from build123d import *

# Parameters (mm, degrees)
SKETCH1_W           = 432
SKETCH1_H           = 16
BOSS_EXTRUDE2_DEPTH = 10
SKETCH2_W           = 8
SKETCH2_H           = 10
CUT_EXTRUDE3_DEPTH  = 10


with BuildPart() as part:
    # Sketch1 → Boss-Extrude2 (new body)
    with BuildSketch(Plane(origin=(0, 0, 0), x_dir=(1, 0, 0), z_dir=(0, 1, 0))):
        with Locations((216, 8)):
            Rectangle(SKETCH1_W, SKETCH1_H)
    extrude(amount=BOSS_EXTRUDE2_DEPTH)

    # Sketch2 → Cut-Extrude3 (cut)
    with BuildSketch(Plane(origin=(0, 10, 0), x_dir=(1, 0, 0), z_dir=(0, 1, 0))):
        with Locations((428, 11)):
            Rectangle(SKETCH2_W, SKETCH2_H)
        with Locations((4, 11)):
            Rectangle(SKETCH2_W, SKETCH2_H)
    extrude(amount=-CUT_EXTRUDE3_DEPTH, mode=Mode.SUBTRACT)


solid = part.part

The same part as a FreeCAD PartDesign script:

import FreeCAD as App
import Part
import Sketcher
Q = App.Units.Quantity


def add_polygon(sketch, points):
    """Adds a closed chain of lines whose ends are joined by coincident constraints."""
    first, n = sketch.GeometryCount, len(points)
    for a, b in zip(points, points[1:] + points[:1]):
        sketch.addGeometry(Part.LineSegment(App.Vector(*a, 0), App.Vector(*b, 0)), False)
    for i in range(n):
        sketch.addConstraint(Sketcher.Constraint("Coincident", first + i, 2, first + (i + 1) % n, 1))

doc = App.newDocument("Part")
params = doc.addObject("Spreadsheet::Sheet", "Params")
for row, (alias, value) in enumerate([
    ("sketch1_width", "432 mm"),
    ("sketch1_height", "16 mm"),
    ("pad1_length", "10 mm"),
    ("sketch2_width", "8 mm"),
    ("sketch2_height", "10 mm"),
    ("pocket1_length", "10 mm"),
], start=1):
    params.set(f"A{row}", alias)
    params.set(f"B{row}", "=" + value)
    params.setAlias(f"B{row}", alias)

body = doc.addObject("PartDesign::Body", "Body")

sketch1 = doc.addObject("Sketcher::SketchObject", "Sketch")
body.addObject(sketch1)
sketch1.AttachmentSupport = (doc.XZ_Plane, [""])
sketch1.MapMode = "FlatFace"
add_polygon(sketch1, [(0, -16), (0, 0), (432, 0), (432, -16)])
sketch1.addConstraint([
    Sketcher.Constraint("Vertical", 0),
    Sketcher.Constraint("Horizontal", 1),
    Sketcher.Constraint("Vertical", 2),
    Sketcher.Constraint("Horizontal", 3),
    Sketcher.Constraint("Coincident", 0, 2, -1, 1),
    Sketcher.Constraint("DistanceX", 1, 1, 1, 2, Q("432 mm")),
    Sketcher.Constraint("DistanceY", 0, 1, 0, 2, Q("16 mm")),
])
sketch1.setExpression("Constraints[9]", "Params.sketch1_width")
sketch1.setExpression("Constraints[10]", "Params.sketch1_height")
pad1 = doc.addObject("PartDesign::Pad", "Pad")
body.addObject(pad1)
pad1.Profile = sketch1
pad1.setExpression("Length", "Params.pad1_length")
pad1.Reversed = True

sketch2 = doc.addObject("Sketcher::SketchObject", "Sketch001")
body.addObject(sketch2)
sketch2.AttachmentSupport = (doc.XZ_Plane, [""])
sketch2.MapMode = "FlatFace"
sketch2.AttachmentOffset = App.Placement(App.Vector(0, 0, -10), App.Rotation())
add_polygon(sketch2, [(424, -16), (424, -6), (432, -6), (432, -16)])
add_polygon(sketch2, [(0, -16), (0, -6), (8, -6), (8, -16)])
sketch2.addConstraint([
    Sketcher.Constraint("Vertical", 0),
    Sketcher.Constraint("Horizontal", 1),
    Sketcher.Constraint("Vertical", 2),
    Sketcher.Constraint("Horizontal", 3),
    Sketcher.Constraint("Vertical", 4),
    Sketcher.Constraint("Horizontal", 5),
    Sketcher.Constraint("Vertical", 6),
    Sketcher.Constraint("Horizontal", 7),
    Sketcher.Constraint("PointOnObject", 4, 2, -2),
    Sketcher.Constraint("Horizontal", 1, 2, 4, 2),
    Sketcher.Constraint("Horizontal", 3, 2, 6, 2),
    Sketcher.Constraint("Equal", 3, 5),
    Sketcher.Constraint("DistanceX", 1, 1, 1, 2, Q("8 mm")),
    Sketcher.Constraint("DistanceY", 0, 1, 0, 2, Q("10 mm")),
    Sketcher.Constraint("DistanceX", -1, 1, 0, 2, Q("424 mm")),
    Sketcher.Constraint("DistanceY", 0, 2, -1, 1, Q("6 mm")),
])
sketch2.setExpression("Constraints[20]", "Params.sketch2_width")
sketch2.setExpression("Constraints[21]", "Params.sketch2_height")
pocket1 = doc.addObject("PartDesign::Pocket", "Pocket")
body.addObject(pocket1)
pocket1.Profile = sketch2
pocket1.setExpression("Length", "Params.pocket1_length")
pocket1.Reversed = True

doc.recompute()
